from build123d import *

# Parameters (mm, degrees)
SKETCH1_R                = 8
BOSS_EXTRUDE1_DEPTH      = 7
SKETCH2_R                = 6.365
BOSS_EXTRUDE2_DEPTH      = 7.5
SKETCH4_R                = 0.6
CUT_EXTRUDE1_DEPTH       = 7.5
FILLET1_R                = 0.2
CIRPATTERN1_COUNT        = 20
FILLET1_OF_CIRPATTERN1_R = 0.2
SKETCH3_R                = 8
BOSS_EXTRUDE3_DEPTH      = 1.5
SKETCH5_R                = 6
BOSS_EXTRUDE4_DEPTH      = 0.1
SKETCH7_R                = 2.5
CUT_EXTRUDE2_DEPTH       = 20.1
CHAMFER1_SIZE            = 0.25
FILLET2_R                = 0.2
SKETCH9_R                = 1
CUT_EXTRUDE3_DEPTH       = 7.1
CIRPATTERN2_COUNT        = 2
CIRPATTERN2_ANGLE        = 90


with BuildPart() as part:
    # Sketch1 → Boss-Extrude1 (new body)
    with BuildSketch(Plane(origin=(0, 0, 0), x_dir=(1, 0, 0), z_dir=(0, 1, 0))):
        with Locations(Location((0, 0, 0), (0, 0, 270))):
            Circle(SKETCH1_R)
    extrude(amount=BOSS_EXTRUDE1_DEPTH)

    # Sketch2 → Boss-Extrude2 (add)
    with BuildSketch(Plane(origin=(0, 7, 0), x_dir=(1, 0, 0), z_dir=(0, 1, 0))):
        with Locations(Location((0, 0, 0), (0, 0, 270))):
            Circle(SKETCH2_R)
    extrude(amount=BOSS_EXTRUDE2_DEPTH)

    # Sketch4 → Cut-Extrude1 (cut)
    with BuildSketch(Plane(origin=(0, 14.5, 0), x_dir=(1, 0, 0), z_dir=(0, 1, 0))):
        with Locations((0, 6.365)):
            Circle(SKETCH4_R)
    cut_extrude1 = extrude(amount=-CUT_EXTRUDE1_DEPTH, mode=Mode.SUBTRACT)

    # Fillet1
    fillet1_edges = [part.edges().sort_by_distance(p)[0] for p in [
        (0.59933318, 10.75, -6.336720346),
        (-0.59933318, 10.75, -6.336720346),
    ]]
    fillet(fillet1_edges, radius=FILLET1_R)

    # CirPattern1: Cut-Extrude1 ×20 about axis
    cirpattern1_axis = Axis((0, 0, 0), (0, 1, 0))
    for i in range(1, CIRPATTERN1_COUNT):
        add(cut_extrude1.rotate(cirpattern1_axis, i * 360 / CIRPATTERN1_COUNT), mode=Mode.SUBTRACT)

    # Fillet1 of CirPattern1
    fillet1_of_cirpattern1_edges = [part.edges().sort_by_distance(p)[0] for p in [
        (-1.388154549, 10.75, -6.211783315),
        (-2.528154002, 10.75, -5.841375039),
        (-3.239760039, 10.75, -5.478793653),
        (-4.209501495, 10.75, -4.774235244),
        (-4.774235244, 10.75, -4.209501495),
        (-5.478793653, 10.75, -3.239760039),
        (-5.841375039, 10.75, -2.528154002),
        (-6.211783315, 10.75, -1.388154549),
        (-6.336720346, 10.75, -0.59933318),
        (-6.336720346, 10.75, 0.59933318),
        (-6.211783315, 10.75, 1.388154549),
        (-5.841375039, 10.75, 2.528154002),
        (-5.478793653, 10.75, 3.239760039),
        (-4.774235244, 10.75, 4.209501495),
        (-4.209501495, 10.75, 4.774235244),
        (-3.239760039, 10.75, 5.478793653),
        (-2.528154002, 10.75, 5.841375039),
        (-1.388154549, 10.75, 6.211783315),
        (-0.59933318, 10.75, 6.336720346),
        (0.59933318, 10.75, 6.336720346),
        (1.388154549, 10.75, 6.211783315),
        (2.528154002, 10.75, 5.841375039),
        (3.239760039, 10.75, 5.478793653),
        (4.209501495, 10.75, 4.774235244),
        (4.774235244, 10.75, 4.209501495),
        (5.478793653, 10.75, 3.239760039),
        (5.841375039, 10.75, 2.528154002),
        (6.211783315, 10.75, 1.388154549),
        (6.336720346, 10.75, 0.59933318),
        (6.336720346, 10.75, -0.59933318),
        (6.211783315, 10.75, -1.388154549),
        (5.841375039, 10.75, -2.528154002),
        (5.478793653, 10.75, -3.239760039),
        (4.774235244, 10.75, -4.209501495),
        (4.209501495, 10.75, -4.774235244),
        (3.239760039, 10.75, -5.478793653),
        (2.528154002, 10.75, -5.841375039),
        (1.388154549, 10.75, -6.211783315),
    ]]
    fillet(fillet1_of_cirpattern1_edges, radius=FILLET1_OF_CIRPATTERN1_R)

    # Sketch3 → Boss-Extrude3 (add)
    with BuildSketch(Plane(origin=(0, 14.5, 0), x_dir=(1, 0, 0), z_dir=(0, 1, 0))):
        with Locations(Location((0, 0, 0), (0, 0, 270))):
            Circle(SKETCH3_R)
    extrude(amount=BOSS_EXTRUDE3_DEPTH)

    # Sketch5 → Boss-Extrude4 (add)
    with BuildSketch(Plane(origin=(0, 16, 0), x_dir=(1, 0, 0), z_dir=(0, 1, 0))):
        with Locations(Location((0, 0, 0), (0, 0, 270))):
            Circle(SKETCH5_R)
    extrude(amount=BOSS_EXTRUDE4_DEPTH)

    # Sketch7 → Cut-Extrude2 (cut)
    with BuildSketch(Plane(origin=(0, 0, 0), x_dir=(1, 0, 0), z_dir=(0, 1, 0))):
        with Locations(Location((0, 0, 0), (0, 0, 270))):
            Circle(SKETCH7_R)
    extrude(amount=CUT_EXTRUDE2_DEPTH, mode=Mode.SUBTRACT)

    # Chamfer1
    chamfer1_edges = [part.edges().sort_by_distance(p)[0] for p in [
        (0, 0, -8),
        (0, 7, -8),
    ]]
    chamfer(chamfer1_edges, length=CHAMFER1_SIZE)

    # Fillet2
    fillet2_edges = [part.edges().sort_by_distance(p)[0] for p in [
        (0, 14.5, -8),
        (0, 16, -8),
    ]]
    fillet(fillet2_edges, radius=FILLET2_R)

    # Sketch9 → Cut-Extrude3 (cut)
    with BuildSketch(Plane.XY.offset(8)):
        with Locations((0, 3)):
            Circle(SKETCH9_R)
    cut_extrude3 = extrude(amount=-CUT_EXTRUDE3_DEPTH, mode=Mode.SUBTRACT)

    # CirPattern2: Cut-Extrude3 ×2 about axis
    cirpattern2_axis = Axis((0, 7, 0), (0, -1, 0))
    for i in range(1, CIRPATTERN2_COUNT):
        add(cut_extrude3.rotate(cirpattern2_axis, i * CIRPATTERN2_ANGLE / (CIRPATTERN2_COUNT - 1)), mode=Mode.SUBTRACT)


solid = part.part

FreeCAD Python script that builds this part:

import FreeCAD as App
import Part
import Sketcher


def edges_at(feature, points):
    """Names of the edges that pass closest to the given points."""
    edges = feature.Shape.Edges
    near = lambda p: min(range(len(edges)), key=lambda i: edges[i].distToShape(Part.Vertex(*p))[0])
    return sorted({f"Edge{near(p) + 1}" for p in points})

doc = App.newDocument("Part")
body = doc.addObject("PartDesign::Body", "Body")

sketch1 = doc.addObject("Sketcher::SketchObject", "Sketch")
body.addObject(sketch1)
sketch1.AttachmentSupport = (doc.XZ_Plane, [""])
sketch1.MapMode = "FlatFace"
sketch1.addGeometry(Part.Circle(App.Vector(0, 0, 0), App.Vector(0, 0, 1), 8), False)
sketch1.addConstraint(Sketcher.Constraint("Coincident", 0, 3, -1, 1))
sketch1.addConstraint(Sketcher.Constraint("Diameter", 0, 16.0))
pad1 = doc.addObject("PartDesign::Pad", "Pad")
body.addObject(pad1)
pad1.Profile = sketch1
pad1.Length = 7
pad1.Reversed = True

sketch2 = doc.addObject("Sketcher::SketchObject", "Sketch001")
body.addObject(sketch2)
sketch2.AttachmentSupport = (doc.XZ_Plane, [""])
sketch2.MapMode = "FlatFace"
sketch2.AttachmentOffset = App.Placement(App.Vector(0, 0, -7), App.Rotation())
sketch2.addGeometry(Part.Circle(App.Vector(0, 0, 0), App.Vector(0, 0, 1), 6.365), False)
sketch2.addConstraint(Sketcher.Constraint("Coincident", 0, 3, -1, 1))
sketch2.addConstraint(Sketcher.Constraint("Diameter", 0, 12.73))
pad2 = doc.addObject("PartDesign::Pad", "Pad001")
body.addObject(pad2)
pad2.Profile = sketch2
pad2.Length = 7.5
pad2.Reversed = True

sketch3 = doc.addObject("Sketcher::SketchObject", "Sketch002")
body.addObject(sketch3)
sketch3.AttachmentSupport = (doc.XZ_Plane, [""])
sketch3.MapMode = "FlatFace"
sketch3.AttachmentOffset = App.Placement(App.Vector(0, 0, -14.5), App.Rotation())
sketch3.addGeometry(Part.Circle(App.Vector(0, -6.365, 0), App.Vector(0, 0, 1), 0.6), False)
sketch3.addConstraint(Sketcher.Constraint("PointOnObject", 0, 3, -2))
sketch3.addConstraint(Sketcher.Constraint("Diameter", 0, 1.2))
sketch3.addConstraint(Sketcher.Constraint("DistanceY", 0, 3, -1, 1, 6.365))
pocket1 = doc.addObject("PartDesign::Pocket", "Pocket")
body.addObject(pocket1)
pocket1.Profile = sketch3
pocket1.Length = 7.5
pocket1.Reversed = True
doc.recompute()

fillet = doc.addObject("PartDesign::Fillet", "Fillet")
body.addObject(fillet)
fillet.Base = (pocket1, edges_at(pocket1, [(0.599, 10.75, -6.337), (-0.599, 10.75, -6.337)]))
fillet.Radius = 0.2
doc.recompute()

polarpattern = doc.addObject("PartDesign::PolarPattern", "PolarPattern")
body.addObject(polarpattern)
polarpattern.Originals = [pocket1]
polarpattern.Axis = (doc.Y_Axis, [""])
polarpattern.Angle = 360
polarpattern.Occurrences = 20
body.Tip = polarpattern
doc.recompute()

fillet2 = doc.addObject("PartDesign::Fillet", "Fillet001")
body.addObject(fillet2)
fillet2.Base = (polarpattern, edges_at(polarpattern, [
    (-1.388, 10.75, -6.212),
    (-2.528, 10.75, -5.841),
    (-3.24, 10.75, -5.479),
    (-4.21, 10.75, -4.774),
    (-4.774, 10.75, -4.21),
    (-5.479, 10.75, -3.24),
    (-5.841, 10.75, -2.528),
    (-6.212, 10.75, -1.388),
    (-6.337, 10.75, -0.599),
    (-6.337, 10.75, 0.599),
    (-6.212, 10.75, 1.388),
    (-5.841, 10.75, 2.528),
    (-5.479, 10.75, 3.24),
    (-4.774, 10.75, 4.21),
    (-4.21, 10.75, 4.774),
    (-3.24, 10.75, 5.479),
    (-2.528, 10.75, 5.841),
    (-1.388, 10.75, 6.212),
    (-0.599, 10.75, 6.337),
    (0.599, 10.75, 6.337),
    (1.388, 10.75, 6.212),
    (2.528, 10.75, 5.841),
    (3.24, 10.75, 5.479),
    (4.21, 10.75, 4.774),
    (4.774, 10.75, 4.21),
    (5.479, 10.75, 3.24),
    (5.841, 10.75, 2.528),
    (6.212, 10.75, 1.388),
    (6.337, 10.75, 0.599),
    (6.337, 10.75, -0.599),
    (6.212, 10.75, -1.388),
    (5.841, 10.75, -2.528),
    (5.479, 10.75, -3.24),
    (4.774, 10.75, -4.21),
    (4.21, 10.75, -4.774),
    (3.24, 10.75, -5.479),
    (2.528, 10.75, -5.841),
    (1.388, 10.75, -6.212),
]))
fillet2.Radius = 0.2

sketch4 = doc.addObject("Sketcher::SketchObject", "Sketch003")
body.addObject(sketch4)
sketch4.AttachmentSupport = (doc.XZ_Plane, [""])
sketch4.MapMode = "FlatFace"
sketch4.AttachmentOffset = App.Placement(App.Vector(0, 0, -14.5), App.Rotation())
sketch4.addGeometry(Part.Circle(App.Vector(0, 0, 0), App.Vector(0, 0, 1), 8), False)
sketch4.addConstraint(Sketcher.Constraint("Coincident", 0, 3, -1, 1))
sketch4.addConstraint(Sketcher.Constraint("Diameter", 0, 16.0))
pad3 = doc.addObject("PartDesign::Pad", "Pad002")
body.addObject(pad3)
pad3.Profile = sketch4
pad3.Length = 1.5
pad3.Reversed = True

sketch5 = doc.addObject("Sketcher::SketchObject", "Sketch004")
body.addObject(sketch5)
sketch5.AttachmentSupport = (doc.XZ_Plane, [""])
sketch5.MapMode = "FlatFace"
sketch5.AttachmentOffset = App.Placement(App.Vector(0, 0, -16), App.Rotation())
sketch5.addGeometry(Part.Circle(App.Vector(0, 0, 0), App.Vector(0, 0, 1), 6), False)
sketch5.addConstraint(Sketcher.Constraint("Coincident", 0, 3, -1, 1))
sketch5.addConstraint(Sketcher.Constraint("Diameter", 0, 12.0))
pad4 = doc.addObject("PartDesign::Pad", "Pad003")
body.addObject(pad4)
pad4.Profile = sketch5
pad4.Length = 0.1
pad4.Reversed = True

sketch6 = doc.addObject("Sketcher::SketchObject", "Sketch005")
body.addObject(sketch6)
sketch6.AttachmentSupport = (doc.XZ_Plane, [""])
sketch6.MapMode = "FlatFace"
sketch6.addGeometry(Part.Circle(App.Vector(0, 0, 0), App.Vector(0, 0, 1), 2.5), False)
sketch6.addConstraint(Sketcher.Constraint("Coincident", 0, 3, -1, 1))
sketch6.addConstraint(Sketcher.Constraint("Diameter", 0, 5.0))
pocket2 = doc.addObject("PartDesign::Pocket", "Pocket001")
body.addObject(pocket2)
pocket2.Profile = sketch6
pocket2.Length = 20.1
doc.recompute()

chamfer = doc.addObject("PartDesign::Chamfer", "Chamfer")
body.addObject(chamfer)
chamfer.Base = (pocket2, edges_at(pocket2, [(0, 0, -8), (0, 7, -8)]))
chamfer.Size = 0.25
doc.recompute()

fillet3 = doc.addObject("PartDesign::Fillet", "Fillet002")
body.addObject(fillet3)
fillet3.Base = (chamfer, edges_at(chamfer, [(0, 14.5, -8), (0, 16, -8)]))
fillet3.Radius = 0.2

sketch7 = doc.addObject("Sketcher::SketchObject", "Sketch006")
body.addObject(sketch7)
sketch7.AttachmentSupport = (doc.XY_Plane, [""])
sketch7.MapMode = "FlatFace"
sketch7.AttachmentOffset = App.Placement(App.Vector(0, 0, 8), App.Rotation())
sketch7.addGeometry(Part.Circle(App.Vector(0, 3, 0), App.Vector(0, 0, 1), 1), False)
sketch7.addConstraint(Sketcher.Constraint("PointOnObject", 0, 3, -2))
sketch7.addConstraint(Sketcher.Constraint("Diameter", 0, 2.0))
sketch7.addConstraint(Sketcher.Constraint("DistanceY", -1, 1, 0, 3, 3.0))
pocket3 = doc.addObject("PartDesign::Pocket", "Pocket002")
body.addObject(pocket3)
pocket3.Profile = sketch7
pocket3.Length = 7.1
doc.recompute()

polarpattern2 = doc.addObject("PartDesign::PolarPattern", "PolarPattern001")
body.addObject(polarpattern2)
polarpattern2.Originals = [pocket3]
polarpattern2.Axis = (doc.Y_Axis, [""])
polarpattern2.Angle = 90
polarpattern2.Occurrences = 2
polarpattern2.Reversed = True
body.Tip = polarpattern2

doc.recompute()
